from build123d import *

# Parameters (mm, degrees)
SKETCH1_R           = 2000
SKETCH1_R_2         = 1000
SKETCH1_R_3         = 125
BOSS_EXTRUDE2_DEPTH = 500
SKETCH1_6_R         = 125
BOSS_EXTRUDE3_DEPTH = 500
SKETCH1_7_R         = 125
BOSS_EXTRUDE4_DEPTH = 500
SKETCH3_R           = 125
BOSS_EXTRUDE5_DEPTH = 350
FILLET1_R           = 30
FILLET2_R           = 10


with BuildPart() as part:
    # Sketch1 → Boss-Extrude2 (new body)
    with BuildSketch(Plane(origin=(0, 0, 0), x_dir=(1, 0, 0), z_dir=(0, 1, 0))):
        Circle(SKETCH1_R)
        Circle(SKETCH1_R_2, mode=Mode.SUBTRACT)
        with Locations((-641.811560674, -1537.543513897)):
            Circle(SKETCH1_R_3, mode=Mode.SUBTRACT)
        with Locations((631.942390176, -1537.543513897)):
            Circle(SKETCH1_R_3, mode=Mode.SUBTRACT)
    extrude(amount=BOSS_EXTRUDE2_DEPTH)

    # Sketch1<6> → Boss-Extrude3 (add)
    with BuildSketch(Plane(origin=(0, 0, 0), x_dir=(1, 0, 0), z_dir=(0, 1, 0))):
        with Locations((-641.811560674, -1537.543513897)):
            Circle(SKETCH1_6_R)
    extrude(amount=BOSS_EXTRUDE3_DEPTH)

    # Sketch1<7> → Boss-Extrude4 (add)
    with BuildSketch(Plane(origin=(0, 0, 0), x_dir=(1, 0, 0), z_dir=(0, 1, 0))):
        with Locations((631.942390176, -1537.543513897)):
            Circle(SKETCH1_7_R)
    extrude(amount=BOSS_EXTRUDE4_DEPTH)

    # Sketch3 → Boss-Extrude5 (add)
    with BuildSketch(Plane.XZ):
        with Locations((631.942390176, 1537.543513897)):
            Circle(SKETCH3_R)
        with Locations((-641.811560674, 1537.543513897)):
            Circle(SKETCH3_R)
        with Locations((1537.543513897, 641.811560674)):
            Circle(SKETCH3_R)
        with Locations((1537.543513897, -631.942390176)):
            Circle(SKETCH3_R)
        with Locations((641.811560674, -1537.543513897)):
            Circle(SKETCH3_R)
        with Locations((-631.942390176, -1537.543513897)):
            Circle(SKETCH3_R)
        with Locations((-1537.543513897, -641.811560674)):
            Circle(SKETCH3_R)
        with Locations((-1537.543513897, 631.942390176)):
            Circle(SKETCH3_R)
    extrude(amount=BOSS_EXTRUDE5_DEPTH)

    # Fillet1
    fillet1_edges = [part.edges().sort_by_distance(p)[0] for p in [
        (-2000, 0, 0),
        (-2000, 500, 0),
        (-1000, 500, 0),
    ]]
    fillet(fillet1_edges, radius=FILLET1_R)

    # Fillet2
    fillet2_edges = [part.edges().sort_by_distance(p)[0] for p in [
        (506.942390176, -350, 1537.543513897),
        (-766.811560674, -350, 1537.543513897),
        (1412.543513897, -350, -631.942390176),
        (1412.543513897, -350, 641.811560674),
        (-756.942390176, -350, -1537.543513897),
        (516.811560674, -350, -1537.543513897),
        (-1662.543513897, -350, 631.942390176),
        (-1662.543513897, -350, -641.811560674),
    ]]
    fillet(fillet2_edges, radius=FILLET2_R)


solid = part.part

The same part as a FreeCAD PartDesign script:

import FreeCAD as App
import Part
import Sketcher
Q = App.Units.Quantity


def edges_at(feature, points):
    """Names of the edges that pass closest to the given points."""
    edges = feature.Shape.Edges
    near = lambda p: min(range(len(edges)), key=lambda i: edges[i].distToShape(Part.Vertex(*p))[0])
    return sorted({f"Edge{near(p) + 1}" for p in points})

doc = App.newDocument("Part")
body = doc.addObject("PartDesign::Body", "Body")

# Sketch on XZ plane
sketch1 = body.newObject("Sketcher::SketchObject", "Sketch")
sketch1.AttachmentSupport = (doc.getObject("XZ_Plane"), [""])
sketch1.MapMode = "FlatFace"
sketch1.addGeometry([
    Part.Circle(App.Vector(0, 0, 0), App.Vector(0, 0, 1), 2000),
    Part.Circle(App.Vector(-641.811561, 1537.543514, 0), App.Vector(0, 0, 1), 125),
    Part.Circle(App.Vector(631.94239, 1537.543514, 0), App.Vector(0, 0, 1), 125),
    Part.Circle(App.Vector(0, 0, 0), App.Vector(0, 0, 1), 1000),
], False)
sketch1.addConstraint([
    Sketcher.Constraint("Coincident", 0, 3, -1, 1),
    Sketcher.Constraint("Coincident", 3, 3, -1, 1),
    Sketcher.Constraint("Equal", 1, 2),
    Sketcher.Constraint("Horizontal", 1, 3, 2, 3),
    Sketcher.Constraint("Diameter", 0, Q("4000 mm")),
    Sketcher.Constraint("Diameter", 1, Q("250 mm")),
    Sketcher.Constraint("Diameter", 3, Q("2000 mm")),
    Sketcher.Constraint("DistanceX", 1, 3, -1, 1, Q("641.811561 mm")),
    Sketcher.Constraint("DistanceX", -1, 1, 2, 3, Q("631.94239 mm")),
    Sketcher.Constraint("DistanceY", -1, 1, 1, 3, Q("1537.543514 mm")),
])
pad1 = body.newObject("PartDesign::Pad", "Pad")
pad1.Profile = sketch1
pad1.Length = 500
pad1.Reversed = True

# Sketch on XZ plane
sketch2 = body.newObject("Sketcher::SketchObject", "Sketch001")
sketch2.AttachmentSupport = (doc.getObject("XZ_Plane"), [""])
sketch2.MapMode = "FlatFace"
sketch2.addGeometry(Part.Circle(App.Vector(-641.811561, 1537.543514, 0), App.Vector(0, 0, 1), 125), False)
sketch2.addConstraint([
    Sketcher.Constraint("Diameter", 0, Q("250 mm")),
    Sketcher.Constraint("DistanceX", 0, 3, -1, 1, Q("641.811561 mm")),
    Sketcher.Constraint("DistanceY", -1, 1, 0, 3, Q("1537.543514 mm")),
])
pad2 = body.newObject("PartDesign::Pad", "Pad001")
pad2.Profile = sketch2
pad2.Length = 500
pad2.Reversed = True

# Sketch on XZ plane
sketch3 = body.newObject("Sketcher::SketchObject", "Sketch002")
sketch3.AttachmentSupport = (doc.getObject("XZ_Plane"), [""])
sketch3.MapMode = "FlatFace"
sketch3.addGeometry(Part.Circle(App.Vector(631.94239, 1537.543514, 0), App.Vector(0, 0, 1), 125), False)
sketch3.addConstraint([
    Sketcher.Constraint("Diameter", 0, Q("250 mm")),
    Sketcher.Constraint("DistanceX", -1, 1, 0, 3, Q("631.94239 mm")),
    Sketcher.Constraint("DistanceY", -1, 1, 0, 3, Q("1537.543514 mm")),
])
pad3 = body.newObject("PartDesign::Pad", "Pad002")
pad3.Profile = sketch3
pad3.Length = 500
pad3.Reversed = True

# Sketch on XZ plane
sketch4 = body.newObject("Sketcher::SketchObject", "Sketch003")
sketch4.AttachmentSupport = (doc.getObject("XZ_Plane"), [""])
sketch4.MapMode = "FlatFace"
sketch4.addGeometry([
    Part.Circle(App.Vector(631.94239, 1537.543514, 0), App.Vector(0, 0, 1), 125),  # 0
    Part.Circle(App.Vector(-641.811561, 1537.543514, 0), App.Vector(0, 0, 1), 125),  # 1
    Part.Circle(App.Vector(1537.543514, 641.811561, 0), App.Vector(0, 0, 1), 125),  # 2
    Part.Circle(App.Vector(1537.543514, -631.94239, 0), App.Vector(0, 0, 1), 125),  # 3
    Part.Circle(App.Vector(641.811561, -1537.543514, 0), App.Vector(0, 0, 1), 125),  # 4
    Part.Circle(App.Vector(-631.94239, -1537.543514, 0), App.Vector(0, 0, 1), 125),  # 5
    Part.Circle(App.Vector(-1537.543514, -641.811561, 0), App.Vector(0, 0, 1), 125),  # 6
    Part.Circle(App.Vector(-1537.543514, 631.94239, 0), App.Vector(0, 0, 1), 125),  # 7
], False)
sketch4.addConstraint([
    Sketcher.Constraint("Equal", 0, 1),
    Sketcher.Constraint("Equal", 1, 2),
    Sketcher.Constraint("Equal", 2, 3),
    Sketcher.Constraint("Equal", 3, 4),
    Sketcher.Constraint("Equal", 4, 5),
    Sketcher.Constraint("Equal", 5, 6),
    Sketcher.Constraint("Equal", 6, 7),
    Sketcher.Constraint("Symmetric", 1, 3, 4, 3, -1, 1),
    Sketcher.Constraint("Symmetric", 0, 3, 5, 3, -1, 1),
    Sketcher.Constraint("Symmetric", 2, 3, 6, 3, -1, 1),
    Sketcher.Constraint("Symmetric", 3, 3, 7, 3, -1, 1),
    Sketcher.Constraint("Horizontal", 0, 3, 1, 3),
    Sketcher.Constraint("Vertical", 2, 3, 3, 3),
    Sketcher.Constraint("Diameter", 0, Q("250 mm")),
    Sketcher.Constraint("DistanceX", -1, 1, 0, 3, Q("631.94239 mm")),
    Sketcher.Constraint("DistanceX", 1, 3, -1, 1, Q("641.811561 mm")),
    Sketcher.Constraint("DistanceY", -1, 1, 2, 3, Q("641.811561 mm")),
    Sketcher.Constraint("DistanceY", 3, 3, -1, 1, Q("631.94239 mm")),
    Sketcher.Constraint("DistanceY", -1, 1, 0, 3, Q("1537.543514 mm")),
    Sketcher.Constraint("DistanceX", -1, 1, 2, 3, Q("1537.543514 mm")),
])
pad4 = body.newObject("PartDesign::Pad", "Pad003")
pad4.Profile = sketch4
pad4.Length = 350
doc.recompute()

fillet = body.newObject("PartDesign::Fillet", "Fillet")
fillet.Base = (pad4, edges_at(pad4, [(-2000, 0, 0), (-2000, 500, 0), (-1000, 500, 0)]))
fillet.Radius = 30
doc.recompute()

fillet2 = body.newObject("PartDesign::Fillet", "Fillet001")
fillet2.Base = (fillet, edges_at(fillet, [
    (506.942, -350, 1537.544),
    (-766.812, -350, 1537.544),
    (1412.544, -350, -631.942),
    (1412.544, -350, 641.812),
    (-756.942, -350, -1537.544),
    (516.812, -350, -1537.544),
    (-1662.544, -350, 631.942),
    (-1662.544, -350, -641.812),
]))
fillet2.Radius = 10

doc.recompute()
